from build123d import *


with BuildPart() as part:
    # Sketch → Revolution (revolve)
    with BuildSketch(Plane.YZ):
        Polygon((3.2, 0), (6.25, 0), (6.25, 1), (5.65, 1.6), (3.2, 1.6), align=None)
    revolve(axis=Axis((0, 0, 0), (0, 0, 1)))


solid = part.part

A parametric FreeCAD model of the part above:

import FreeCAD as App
import Part
import Sketcher
Q = App.Units.Quantity

doc = App.newDocument("Part")
body = doc.addObject("PartDesign::Body", "Body")

sketch1 = doc.addObject("Sketcher::SketchObject", "Sketch")
body.addObject(sketch1)
sketch1.AttachmentSupport = (doc.YZ_Plane, [""])
sketch1.MapMode = "FlatFace"
sketch1.addGeometry([
    Part.LineSegment(App.Vector(3.2, 0, 0), App.Vector(6.25, 0, 0)),
    Part.LineSegment(App.Vector(6.25, 0, 0), App.Vector(6.25, 1, 0)),
    Part.LineSegment(App.Vector(6.25, 1, 0), App.Vector(5.65, 1.6, 0)),
    Part.LineSegment(App.Vector(5.65, 1.6, 0), App.Vector(3.2, 1.6, 0)),
    Part.LineSegment(App.Vector(3.2, 1.6, 0), App.Vector(3.2, 0, 0)),
], False)
sketch1.addConstraint([
    Sketcher.Constraint("Coincident", 0, 2, 1, 1),
    Sketcher.Constraint("Coincident", 1, 2, 2, 1),
    Sketcher.Constraint("Coincident", 2, 2, 3, 1),
    Sketcher.Constraint("Coincident", 3, 2, 4, 1),
    Sketcher.Constraint("Coincident", 4, 2, 0, 1),
    Sketcher.Constraint("Horizontal", 0),
    Sketcher.Constraint("Vertical", 1),
    Sketcher.Constraint("Horizontal", 3),
    Sketcher.Constraint("Vertical", 4),
    Sketcher.Constraint("PointOnObject", 0, 2, -1),
    Sketcher.Constraint("DistanceY", 1, 1, 1, 2, 1.0),
    Sketcher.Constraint("Angle", 2, Q("135 deg")),
    Sketcher.Constraint("DistanceY", 4, 2, 4, 1, 1.6),
    Sketcher.Constraint("DistanceX", 0, 1, 0, 2, 3.05),
    Sketcher.Constraint("DistanceX", -1, 1, 3, 2, 3.2),
])
revolution = doc.addObject("PartDesign::Revolution", "Revolution")
body.addObject(revolution)
revolution.Profile = sketch1
revolution.ReferenceAxis = (sketch1, ["V_Axis"])
revolution.Angle = 360

doc.recompute()
